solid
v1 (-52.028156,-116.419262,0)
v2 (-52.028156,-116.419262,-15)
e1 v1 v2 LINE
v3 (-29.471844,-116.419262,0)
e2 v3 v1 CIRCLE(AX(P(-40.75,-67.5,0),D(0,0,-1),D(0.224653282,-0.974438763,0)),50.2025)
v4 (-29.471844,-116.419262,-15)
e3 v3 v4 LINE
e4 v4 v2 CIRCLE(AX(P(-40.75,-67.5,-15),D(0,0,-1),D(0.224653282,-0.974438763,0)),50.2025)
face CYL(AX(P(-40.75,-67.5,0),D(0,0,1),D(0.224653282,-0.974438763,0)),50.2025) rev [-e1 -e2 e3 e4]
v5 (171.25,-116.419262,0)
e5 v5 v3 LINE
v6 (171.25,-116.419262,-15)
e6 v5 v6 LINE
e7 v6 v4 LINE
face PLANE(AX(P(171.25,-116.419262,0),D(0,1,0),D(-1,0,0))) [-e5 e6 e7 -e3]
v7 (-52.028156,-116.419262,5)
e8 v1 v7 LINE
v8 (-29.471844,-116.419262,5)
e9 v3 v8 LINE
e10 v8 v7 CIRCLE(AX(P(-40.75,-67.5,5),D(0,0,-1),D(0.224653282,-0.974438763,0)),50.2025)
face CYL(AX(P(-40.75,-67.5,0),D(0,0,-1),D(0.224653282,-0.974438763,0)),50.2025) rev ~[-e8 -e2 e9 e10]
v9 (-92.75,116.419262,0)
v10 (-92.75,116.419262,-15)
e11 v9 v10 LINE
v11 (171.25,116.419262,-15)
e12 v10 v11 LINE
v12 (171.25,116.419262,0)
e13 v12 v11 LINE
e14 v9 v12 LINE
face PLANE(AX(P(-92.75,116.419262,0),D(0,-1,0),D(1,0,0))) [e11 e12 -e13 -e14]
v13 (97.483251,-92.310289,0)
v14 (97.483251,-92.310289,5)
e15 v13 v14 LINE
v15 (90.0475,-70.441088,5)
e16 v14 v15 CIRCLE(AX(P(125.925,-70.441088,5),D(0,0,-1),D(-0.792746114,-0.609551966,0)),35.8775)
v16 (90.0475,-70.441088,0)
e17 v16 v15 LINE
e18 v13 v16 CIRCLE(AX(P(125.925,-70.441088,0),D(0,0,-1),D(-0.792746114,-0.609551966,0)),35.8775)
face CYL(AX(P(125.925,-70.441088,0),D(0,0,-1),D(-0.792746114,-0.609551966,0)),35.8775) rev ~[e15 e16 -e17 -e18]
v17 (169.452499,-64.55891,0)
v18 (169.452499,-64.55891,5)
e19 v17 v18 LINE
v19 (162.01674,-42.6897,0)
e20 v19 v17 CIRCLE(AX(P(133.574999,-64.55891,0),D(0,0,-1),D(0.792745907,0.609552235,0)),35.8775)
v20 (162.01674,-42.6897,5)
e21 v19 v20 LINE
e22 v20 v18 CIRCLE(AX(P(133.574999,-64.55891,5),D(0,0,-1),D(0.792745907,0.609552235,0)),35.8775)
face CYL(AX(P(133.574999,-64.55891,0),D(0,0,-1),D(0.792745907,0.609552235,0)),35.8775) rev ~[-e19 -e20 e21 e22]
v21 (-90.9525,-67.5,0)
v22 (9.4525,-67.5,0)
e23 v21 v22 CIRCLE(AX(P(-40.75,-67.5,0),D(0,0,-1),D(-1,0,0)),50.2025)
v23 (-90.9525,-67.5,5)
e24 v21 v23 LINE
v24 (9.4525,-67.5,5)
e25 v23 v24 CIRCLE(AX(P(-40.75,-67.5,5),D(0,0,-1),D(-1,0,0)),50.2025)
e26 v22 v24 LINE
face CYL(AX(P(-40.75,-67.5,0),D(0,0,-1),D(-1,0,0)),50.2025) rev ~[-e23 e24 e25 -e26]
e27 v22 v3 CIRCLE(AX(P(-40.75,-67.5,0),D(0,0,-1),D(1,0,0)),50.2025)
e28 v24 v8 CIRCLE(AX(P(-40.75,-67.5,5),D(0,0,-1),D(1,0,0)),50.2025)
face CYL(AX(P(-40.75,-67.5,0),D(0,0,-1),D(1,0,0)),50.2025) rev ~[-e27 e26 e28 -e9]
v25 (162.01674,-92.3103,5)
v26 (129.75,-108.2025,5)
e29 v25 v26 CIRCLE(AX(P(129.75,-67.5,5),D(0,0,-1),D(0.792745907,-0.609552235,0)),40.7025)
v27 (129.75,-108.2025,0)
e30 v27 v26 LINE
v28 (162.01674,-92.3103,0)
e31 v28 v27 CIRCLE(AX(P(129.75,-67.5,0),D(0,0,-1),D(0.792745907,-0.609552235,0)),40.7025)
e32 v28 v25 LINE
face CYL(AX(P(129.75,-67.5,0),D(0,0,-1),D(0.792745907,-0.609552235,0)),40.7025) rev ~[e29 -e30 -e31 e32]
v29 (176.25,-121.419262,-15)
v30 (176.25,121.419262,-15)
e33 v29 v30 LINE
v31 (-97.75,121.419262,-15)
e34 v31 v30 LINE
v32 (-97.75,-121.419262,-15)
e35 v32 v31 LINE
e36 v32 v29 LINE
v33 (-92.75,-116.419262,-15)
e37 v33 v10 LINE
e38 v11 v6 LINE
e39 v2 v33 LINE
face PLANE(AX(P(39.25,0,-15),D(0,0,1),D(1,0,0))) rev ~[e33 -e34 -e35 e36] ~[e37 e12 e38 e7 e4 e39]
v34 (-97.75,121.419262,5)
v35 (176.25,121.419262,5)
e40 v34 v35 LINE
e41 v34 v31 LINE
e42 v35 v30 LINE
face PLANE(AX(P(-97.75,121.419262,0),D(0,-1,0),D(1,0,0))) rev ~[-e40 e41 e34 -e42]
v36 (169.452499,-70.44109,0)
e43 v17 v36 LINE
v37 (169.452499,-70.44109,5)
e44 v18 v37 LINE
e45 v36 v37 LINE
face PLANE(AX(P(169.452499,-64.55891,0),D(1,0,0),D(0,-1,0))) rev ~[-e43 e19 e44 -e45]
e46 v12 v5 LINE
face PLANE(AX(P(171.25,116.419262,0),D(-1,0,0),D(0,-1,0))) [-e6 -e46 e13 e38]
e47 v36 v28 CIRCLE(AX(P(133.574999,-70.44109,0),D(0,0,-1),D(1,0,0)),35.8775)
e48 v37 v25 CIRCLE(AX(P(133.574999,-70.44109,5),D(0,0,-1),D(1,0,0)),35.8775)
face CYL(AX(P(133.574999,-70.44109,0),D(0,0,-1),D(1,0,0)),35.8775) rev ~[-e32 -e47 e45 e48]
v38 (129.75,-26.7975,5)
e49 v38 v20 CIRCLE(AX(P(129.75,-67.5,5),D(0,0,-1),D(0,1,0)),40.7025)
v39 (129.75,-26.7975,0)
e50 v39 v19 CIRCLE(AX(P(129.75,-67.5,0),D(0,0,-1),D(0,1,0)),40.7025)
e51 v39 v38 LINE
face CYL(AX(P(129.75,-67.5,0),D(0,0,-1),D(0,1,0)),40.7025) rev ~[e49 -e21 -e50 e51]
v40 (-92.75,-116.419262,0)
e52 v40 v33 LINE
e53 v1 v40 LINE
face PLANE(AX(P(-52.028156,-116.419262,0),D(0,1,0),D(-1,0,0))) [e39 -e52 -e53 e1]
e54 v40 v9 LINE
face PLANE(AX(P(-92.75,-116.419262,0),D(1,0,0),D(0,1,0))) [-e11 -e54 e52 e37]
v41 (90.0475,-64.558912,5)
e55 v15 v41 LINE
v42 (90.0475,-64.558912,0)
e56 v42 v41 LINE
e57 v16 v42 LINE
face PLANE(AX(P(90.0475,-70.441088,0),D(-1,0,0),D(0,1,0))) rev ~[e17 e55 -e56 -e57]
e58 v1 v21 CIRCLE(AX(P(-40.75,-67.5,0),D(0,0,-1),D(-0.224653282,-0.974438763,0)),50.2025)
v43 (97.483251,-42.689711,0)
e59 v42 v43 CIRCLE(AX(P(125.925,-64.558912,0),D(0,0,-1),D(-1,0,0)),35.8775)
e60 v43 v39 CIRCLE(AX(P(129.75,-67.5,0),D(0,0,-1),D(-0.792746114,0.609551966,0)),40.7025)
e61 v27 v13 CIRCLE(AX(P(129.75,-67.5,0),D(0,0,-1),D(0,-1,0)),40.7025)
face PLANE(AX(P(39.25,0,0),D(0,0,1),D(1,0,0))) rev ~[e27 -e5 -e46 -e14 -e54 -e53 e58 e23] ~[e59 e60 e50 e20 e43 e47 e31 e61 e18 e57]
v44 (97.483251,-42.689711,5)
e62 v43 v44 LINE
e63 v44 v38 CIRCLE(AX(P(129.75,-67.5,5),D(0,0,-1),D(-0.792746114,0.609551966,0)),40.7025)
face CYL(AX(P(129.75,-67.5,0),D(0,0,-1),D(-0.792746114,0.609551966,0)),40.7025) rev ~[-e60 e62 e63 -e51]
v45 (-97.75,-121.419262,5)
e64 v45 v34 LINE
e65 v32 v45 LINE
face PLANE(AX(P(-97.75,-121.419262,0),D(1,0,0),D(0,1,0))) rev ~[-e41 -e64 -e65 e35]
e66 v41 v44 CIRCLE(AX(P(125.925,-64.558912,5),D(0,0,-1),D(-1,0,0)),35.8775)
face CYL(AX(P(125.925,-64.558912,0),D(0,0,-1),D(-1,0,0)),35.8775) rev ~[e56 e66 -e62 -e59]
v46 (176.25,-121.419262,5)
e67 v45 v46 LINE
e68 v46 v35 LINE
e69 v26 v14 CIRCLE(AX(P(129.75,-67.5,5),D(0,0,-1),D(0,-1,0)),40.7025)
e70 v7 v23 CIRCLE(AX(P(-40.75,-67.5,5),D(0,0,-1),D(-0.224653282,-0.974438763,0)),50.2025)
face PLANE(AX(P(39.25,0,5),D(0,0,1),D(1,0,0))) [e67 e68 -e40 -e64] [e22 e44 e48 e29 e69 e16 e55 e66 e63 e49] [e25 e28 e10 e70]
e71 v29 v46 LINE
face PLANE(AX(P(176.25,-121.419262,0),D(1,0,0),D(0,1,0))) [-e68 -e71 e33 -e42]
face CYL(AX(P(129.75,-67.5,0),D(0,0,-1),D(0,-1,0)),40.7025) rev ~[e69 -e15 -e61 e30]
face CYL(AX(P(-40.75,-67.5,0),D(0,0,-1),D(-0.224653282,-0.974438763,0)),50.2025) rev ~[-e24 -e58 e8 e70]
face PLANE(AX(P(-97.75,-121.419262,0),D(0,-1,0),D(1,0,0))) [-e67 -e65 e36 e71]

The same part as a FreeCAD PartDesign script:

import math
import FreeCAD as App
import Part
import Sketcher
from FreeCAD import Vector
Q = App.Units.Quantity

doc = App.newDocument("Part")
body = doc.addObject("PartDesign::Body", "Body")

# Sketch on XY plane
sketch1 = doc.addObject("Sketcher::SketchObject", "Sketch")
body.addObject(sketch1)
sketch1.AttachmentSupport = (doc.XY_Plane, [""])
sketch1.MapMode = "FlatFace"
sketch1.addGeometry([
    Part.LineSegment(Vector(-97.75, 121.419262, 0), Vector(-97.75, -121.419262, 0)),  # 0
    Part.LineSegment(Vector(-97.75, -121.419262, 0), Vector(176.25, -121.419262, 0)),  # 1
    Part.LineSegment(Vector(176.25, -121.419262, 0), Vector(176.25, 121.419262, 0)),  # 2
    Part.LineSegment(Vector(176.25, 121.419262, 0), Vector(-97.75, 121.419262, 0)),  # 3
    Part.ArcOfCircle(Part.Circle(Vector(-40.75, -67.5, 0), Vector(0, 0, 1), 50.2025), math.radians(-102.982491), math.radians(-77.017509)),  # 4
    Part.ArcOfCircle(Part.Circle(Vector(-40.75, -67.5, 0), Vector(0, 0, 1), 50.2025), math.radians(180), math.radians(257.017509)),  # 5
    Part.ArcOfCircle(Part.Circle(Vector(-40.75, -67.5, 0), Vector(0, 0, 1), 50.2025), math.radians(0), math.radians(180)),  # 6
    Part.ArcOfCircle(Part.Circle(Vector(-40.75, -67.5, 0), Vector(0, 0, 1), 50.2025), math.radians(-77.017509), math.radians(0)),  # 7
    Part.ArcOfCircle(Part.Circle(Vector(129.75, -67.5, 0), Vector(0, 0, 1), 40.7025), math.radians(90), math.radians(142.442886)),  # 8
    Part.ArcOfCircle(Part.Circle(Vector(129.75, -67.5, 0), Vector(0, 0, 1), 40.7025), math.radians(37.557134), math.radians(90)),  # 9
    Part.ArcOfCircle(Part.Circle(Vector(133.574999, -64.55891, 0), Vector(0, 0, 1), 35.8775), math.radians(0), math.radians(37.557134)),  # 10
    Part.LineSegment(Vector(169.452499, -64.55891, 0), Vector(169.452499, -70.44109, 0)),  # 11
    Part.ArcOfCircle(Part.Circle(Vector(133.574999, -70.44109, 0), Vector(0, 0, 1), 35.8775), math.radians(-37.557134), math.radians(0)),  # 12
    Part.ArcOfCircle(Part.Circle(Vector(129.75, -67.5, 0), Vector(0, 0, 1), 40.7025), math.radians(-90), math.radians(-37.557134)),  # 13
    Part.ArcOfCircle(Part.Circle(Vector(129.75, -67.5, 0), Vector(0, 0, 1), 40.7025), math.radians(-142.442886), math.radians(-90)),  # 14
    Part.ArcOfCircle(Part.Circle(Vector(125.925, -70.441088, 0), Vector(0, 0, 1), 35.8775), math.radians(180), math.radians(217.557114)),  # 15
    Part.LineSegment(Vector(90.0475, -70.441088, 0), Vector(90.0475, -64.558912, 0)),  # 16
    Part.ArcOfCircle(Part.Circle(Vector(125.925, -64.558912, 0), Vector(0, 0, 1), 35.8775), math.radians(142.442886), math.radians(180)),  # 17
], False)
sketch1.addConstraint([
    Sketcher.Constraint("Coincident", 0, 2, 1, 1),
    Sketcher.Constraint("Coincident", 1, 2, 2, 1),
    Sketcher.Constraint("Coincident", 2, 2, 3, 1),
    Sketcher.Constraint("Coincident", 3, 2, 0, 1),
    Sketcher.Constraint("Tangent", 4, 1, 5, 2),
    Sketcher.Constraint("Tangent", 5, 1, 6, 2),
    Sketcher.Constraint("Tangent", 6, 1, 7, 2),
    Sketcher.Constraint("Tangent", 7, 1, 4, 2),
    Sketcher.Constraint("Tangent", 8, 1, 9, 2),
    Sketcher.Constraint("Tangent", 9, 1, 10, 2),
    Sketcher.Constraint("Tangent", 10, 1, 11, 1),
    Sketcher.Constraint("Tangent", 11, 2, 12, 2),
    Sketcher.Constraint("Tangent", 12, 1, 13, 2),
    Sketcher.Constraint("Tangent", 13, 1, 14, 2),
    Sketcher.Constraint("Tangent", 14, 1, 15, 2),
    Sketcher.Constraint("Tangent", 15, 1, 16, 1),
    Sketcher.Constraint("Tangent", 16, 2, 17, 2),
    Sketcher.Constraint("Tangent", 17, 1, 8, 2),
    Sketcher.Constraint("Vertical", 0),
    Sketcher.Constraint("Horizontal", 1),
    Sketcher.Constraint("Vertical", 2),
    Sketcher.Constraint("Horizontal", 3),
    Sketcher.Constraint("Vertical", 11),
    Sketcher.Constraint("Vertical", 16),
    Sketcher.Constraint("Coincident", 13, 3, 8, 3),
    Sketcher.Constraint("Equal", 4, 5),
    Sketcher.Constraint("Equal", 8, 9),
    Sketcher.Constraint("Equal", 10, 12),
    Sketcher.Constraint("Equal", 9, 13),
    Sketcher.Constraint("Equal", 13, 14),
    Sketcher.Constraint("Equal", 12, 15),
    Sketcher.Constraint("Equal", 15, 17),
    Sketcher.Constraint("Horizontal", 7, 3, 8, 3),
    Sketcher.Constraint("Horizontal", 12, 3, 15, 3),
    Sketcher.Constraint("Horizontal", 14, 3, 5, 1),
    Sketcher.Constraint("Horizontal", 5, 1, 6, 1),
    Sketcher.Constraint("Horizontal", 4, 1, 7, 1),
    Sketcher.Constraint("Vertical", 14, 3, 8, 1),
    Sketcher.Constraint("Vertical", 8, 1, 13, 1),
    Sketcher.Constraint("DistanceX", 1, 1, 1, 2, Q("274 mm")),
    Sketcher.Constraint("DistanceX", 0, 2, 4, 3, Q("57 mm")),
    Sketcher.Constraint("DistanceY", 0, 2, 4, 1, Q("5 mm")),
    Sketcher.Constraint("DistanceY", 4, 3, -1, 1, Q("67.5 mm")),
    Sketcher.Constraint("Radius", 4, Q("50.2025 mm")),
    Sketcher.Constraint("Radius", 8, Q("40.7025 mm")),
    Sketcher.Constraint("Radius", 10, Q("35.8775 mm")),
    Sketcher.Constraint("DistanceX", 4, 3, 8, 3, Q("170.5 mm")),
    Sketcher.Constraint("DistanceX", 4, 3, -1, 1, Q("40.75 mm")),
    Sketcher.Constraint("DistanceX", 15, 3, 12, 3, Q("7.649999 mm")),
    Sketcher.Constraint("DistanceY", 0, 2, 0, 1, Q("242.838524 mm")),
    Sketcher.Constraint("DistanceY", 1, 2, 10, 3, Q("56.860352 mm")),
])
pad1 = doc.addObject("PartDesign::Pad", "Pad")
body.addObject(pad1)
pad1.Profile = sketch1
pad1.Length = 5

# Sketch on XY plane
sketch2 = doc.addObject("Sketcher::SketchObject", "Sketch001")
body.addObject(sketch2)
sketch2.AttachmentSupport = (doc.XY_Plane, [""])
sketch2.MapMode = "FlatFace"
sketch2.addGeometry([
    Part.LineSegment(Vector(-97.75, 121.419262, 0), Vector(-97.75, -121.419262, 0)),  # 0
    Part.LineSegment(Vector(-97.75, -121.419262, 0), Vector(176.25, -121.419262, 0)),  # 1
    Part.LineSegment(Vector(176.25, -121.419262, 0), Vector(176.25, 121.419262, 0)),  # 2
    Part.LineSegment(Vector(176.25, 121.419262, 0), Vector(-97.75, 121.419262, 0)),  # 3
    Part.LineSegment(Vector(171.25, 116.419262, 0), Vector(171.25, -116.419262, 0)),  # 4
    Part.LineSegment(Vector(171.25, -116.419262, 0), Vector(-29.471844, -116.419262, 0)),  # 5
    Part.ArcOfCircle(Part.Circle(Vector(-40.75, -67.5, 0), Vector(0, 0, 1), 50.2025), math.radians(-102.982491), math.radians(-77.017509)),  # 6
    Part.LineSegment(Vector(-52.028156, -116.419262, 0), Vector(-92.75, -116.419262, 0)),  # 7
    Part.LineSegment(Vector(-92.75, -116.419262, 0), Vector(-92.75, 116.419262, 0)),  # 8
    Part.LineSegment(Vector(-92.75, 116.419262, 0), Vector(171.25, 116.419262, 0)),  # 9
], False)
sketch2.addConstraint([
    Sketcher.Constraint("Coincident", 0, 2, 1, 1),
    Sketcher.Constraint("Coincident", 1, 2, 2, 1),
    Sketcher.Constraint("Coincident", 2, 2, 3, 1),
    Sketcher.Constraint("Coincident", 3, 2, 0, 1),
    Sketcher.Constraint("Coincident", 4, 2, 5, 1),
    Sketcher.Constraint("Coincident", 5, 2, 6, 2),
    Sketcher.Constraint("Coincident", 6, 1, 7, 1),
    Sketcher.Constraint("Coincident", 7, 2, 8, 1),
    Sketcher.Constraint("Coincident", 8, 2, 9, 1),
    Sketcher.Constraint("Coincident", 9, 2, 4, 1),
    Sketcher.Constraint("Vertical", 0),
    Sketcher.Constraint("Horizontal", 1),
    Sketcher.Constraint("Vertical", 2),
    Sketcher.Constraint("Horizontal", 3),
    Sketcher.Constraint("Vertical", 4),
    Sketcher.Constraint("Horizontal", 5),
    Sketcher.Constraint("Horizontal", 7),
    Sketcher.Constraint("Vertical", 8),
    Sketcher.Constraint("Horizontal", 9),
    Sketcher.Constraint("Horizontal", 5, 2, 6, 1),
    Sketcher.Constraint("DistanceX", 1, 1, 1, 2, Q("274 mm")),
    Sketcher.Constraint("DistanceX", 9, 1, 9, 2, Q("264 mm")),
    Sketcher.Constraint("DistanceX", 0, 2, 6, 3, Q("57 mm")),
    Sketcher.Constraint("DistanceX", 4, 2, 1, 2, Q("5 mm")),
    Sketcher.Constraint("DistanceY", 1, 2, 4, 2, Q("5 mm")),
    Sketcher.Constraint("DistanceY", 8, 2, 3, 2, Q("5 mm")),
    Sketcher.Constraint("DistanceY", 6, 3, -1, 1, Q("67.5 mm")),
    Sketcher.Constraint("Radius", 6, Q("50.2025 mm")),
    Sketcher.Constraint("DistanceX", 6, 3, -1, 1, Q("40.75 mm")),
    Sketcher.Constraint("DistanceX", 5, 2, 5, 1, Q("200.721844 mm")),
    Sketcher.Constraint("DistanceY", 0, 2, 0, 1, Q("242.838524 mm")),
])
pad2 = doc.addObject("PartDesign::Pad", "Pad001")
body.addObject(pad2)
pad2.Profile = sketch2
pad2.Length = 15
pad2.Reversed = True

doc.recompute()
